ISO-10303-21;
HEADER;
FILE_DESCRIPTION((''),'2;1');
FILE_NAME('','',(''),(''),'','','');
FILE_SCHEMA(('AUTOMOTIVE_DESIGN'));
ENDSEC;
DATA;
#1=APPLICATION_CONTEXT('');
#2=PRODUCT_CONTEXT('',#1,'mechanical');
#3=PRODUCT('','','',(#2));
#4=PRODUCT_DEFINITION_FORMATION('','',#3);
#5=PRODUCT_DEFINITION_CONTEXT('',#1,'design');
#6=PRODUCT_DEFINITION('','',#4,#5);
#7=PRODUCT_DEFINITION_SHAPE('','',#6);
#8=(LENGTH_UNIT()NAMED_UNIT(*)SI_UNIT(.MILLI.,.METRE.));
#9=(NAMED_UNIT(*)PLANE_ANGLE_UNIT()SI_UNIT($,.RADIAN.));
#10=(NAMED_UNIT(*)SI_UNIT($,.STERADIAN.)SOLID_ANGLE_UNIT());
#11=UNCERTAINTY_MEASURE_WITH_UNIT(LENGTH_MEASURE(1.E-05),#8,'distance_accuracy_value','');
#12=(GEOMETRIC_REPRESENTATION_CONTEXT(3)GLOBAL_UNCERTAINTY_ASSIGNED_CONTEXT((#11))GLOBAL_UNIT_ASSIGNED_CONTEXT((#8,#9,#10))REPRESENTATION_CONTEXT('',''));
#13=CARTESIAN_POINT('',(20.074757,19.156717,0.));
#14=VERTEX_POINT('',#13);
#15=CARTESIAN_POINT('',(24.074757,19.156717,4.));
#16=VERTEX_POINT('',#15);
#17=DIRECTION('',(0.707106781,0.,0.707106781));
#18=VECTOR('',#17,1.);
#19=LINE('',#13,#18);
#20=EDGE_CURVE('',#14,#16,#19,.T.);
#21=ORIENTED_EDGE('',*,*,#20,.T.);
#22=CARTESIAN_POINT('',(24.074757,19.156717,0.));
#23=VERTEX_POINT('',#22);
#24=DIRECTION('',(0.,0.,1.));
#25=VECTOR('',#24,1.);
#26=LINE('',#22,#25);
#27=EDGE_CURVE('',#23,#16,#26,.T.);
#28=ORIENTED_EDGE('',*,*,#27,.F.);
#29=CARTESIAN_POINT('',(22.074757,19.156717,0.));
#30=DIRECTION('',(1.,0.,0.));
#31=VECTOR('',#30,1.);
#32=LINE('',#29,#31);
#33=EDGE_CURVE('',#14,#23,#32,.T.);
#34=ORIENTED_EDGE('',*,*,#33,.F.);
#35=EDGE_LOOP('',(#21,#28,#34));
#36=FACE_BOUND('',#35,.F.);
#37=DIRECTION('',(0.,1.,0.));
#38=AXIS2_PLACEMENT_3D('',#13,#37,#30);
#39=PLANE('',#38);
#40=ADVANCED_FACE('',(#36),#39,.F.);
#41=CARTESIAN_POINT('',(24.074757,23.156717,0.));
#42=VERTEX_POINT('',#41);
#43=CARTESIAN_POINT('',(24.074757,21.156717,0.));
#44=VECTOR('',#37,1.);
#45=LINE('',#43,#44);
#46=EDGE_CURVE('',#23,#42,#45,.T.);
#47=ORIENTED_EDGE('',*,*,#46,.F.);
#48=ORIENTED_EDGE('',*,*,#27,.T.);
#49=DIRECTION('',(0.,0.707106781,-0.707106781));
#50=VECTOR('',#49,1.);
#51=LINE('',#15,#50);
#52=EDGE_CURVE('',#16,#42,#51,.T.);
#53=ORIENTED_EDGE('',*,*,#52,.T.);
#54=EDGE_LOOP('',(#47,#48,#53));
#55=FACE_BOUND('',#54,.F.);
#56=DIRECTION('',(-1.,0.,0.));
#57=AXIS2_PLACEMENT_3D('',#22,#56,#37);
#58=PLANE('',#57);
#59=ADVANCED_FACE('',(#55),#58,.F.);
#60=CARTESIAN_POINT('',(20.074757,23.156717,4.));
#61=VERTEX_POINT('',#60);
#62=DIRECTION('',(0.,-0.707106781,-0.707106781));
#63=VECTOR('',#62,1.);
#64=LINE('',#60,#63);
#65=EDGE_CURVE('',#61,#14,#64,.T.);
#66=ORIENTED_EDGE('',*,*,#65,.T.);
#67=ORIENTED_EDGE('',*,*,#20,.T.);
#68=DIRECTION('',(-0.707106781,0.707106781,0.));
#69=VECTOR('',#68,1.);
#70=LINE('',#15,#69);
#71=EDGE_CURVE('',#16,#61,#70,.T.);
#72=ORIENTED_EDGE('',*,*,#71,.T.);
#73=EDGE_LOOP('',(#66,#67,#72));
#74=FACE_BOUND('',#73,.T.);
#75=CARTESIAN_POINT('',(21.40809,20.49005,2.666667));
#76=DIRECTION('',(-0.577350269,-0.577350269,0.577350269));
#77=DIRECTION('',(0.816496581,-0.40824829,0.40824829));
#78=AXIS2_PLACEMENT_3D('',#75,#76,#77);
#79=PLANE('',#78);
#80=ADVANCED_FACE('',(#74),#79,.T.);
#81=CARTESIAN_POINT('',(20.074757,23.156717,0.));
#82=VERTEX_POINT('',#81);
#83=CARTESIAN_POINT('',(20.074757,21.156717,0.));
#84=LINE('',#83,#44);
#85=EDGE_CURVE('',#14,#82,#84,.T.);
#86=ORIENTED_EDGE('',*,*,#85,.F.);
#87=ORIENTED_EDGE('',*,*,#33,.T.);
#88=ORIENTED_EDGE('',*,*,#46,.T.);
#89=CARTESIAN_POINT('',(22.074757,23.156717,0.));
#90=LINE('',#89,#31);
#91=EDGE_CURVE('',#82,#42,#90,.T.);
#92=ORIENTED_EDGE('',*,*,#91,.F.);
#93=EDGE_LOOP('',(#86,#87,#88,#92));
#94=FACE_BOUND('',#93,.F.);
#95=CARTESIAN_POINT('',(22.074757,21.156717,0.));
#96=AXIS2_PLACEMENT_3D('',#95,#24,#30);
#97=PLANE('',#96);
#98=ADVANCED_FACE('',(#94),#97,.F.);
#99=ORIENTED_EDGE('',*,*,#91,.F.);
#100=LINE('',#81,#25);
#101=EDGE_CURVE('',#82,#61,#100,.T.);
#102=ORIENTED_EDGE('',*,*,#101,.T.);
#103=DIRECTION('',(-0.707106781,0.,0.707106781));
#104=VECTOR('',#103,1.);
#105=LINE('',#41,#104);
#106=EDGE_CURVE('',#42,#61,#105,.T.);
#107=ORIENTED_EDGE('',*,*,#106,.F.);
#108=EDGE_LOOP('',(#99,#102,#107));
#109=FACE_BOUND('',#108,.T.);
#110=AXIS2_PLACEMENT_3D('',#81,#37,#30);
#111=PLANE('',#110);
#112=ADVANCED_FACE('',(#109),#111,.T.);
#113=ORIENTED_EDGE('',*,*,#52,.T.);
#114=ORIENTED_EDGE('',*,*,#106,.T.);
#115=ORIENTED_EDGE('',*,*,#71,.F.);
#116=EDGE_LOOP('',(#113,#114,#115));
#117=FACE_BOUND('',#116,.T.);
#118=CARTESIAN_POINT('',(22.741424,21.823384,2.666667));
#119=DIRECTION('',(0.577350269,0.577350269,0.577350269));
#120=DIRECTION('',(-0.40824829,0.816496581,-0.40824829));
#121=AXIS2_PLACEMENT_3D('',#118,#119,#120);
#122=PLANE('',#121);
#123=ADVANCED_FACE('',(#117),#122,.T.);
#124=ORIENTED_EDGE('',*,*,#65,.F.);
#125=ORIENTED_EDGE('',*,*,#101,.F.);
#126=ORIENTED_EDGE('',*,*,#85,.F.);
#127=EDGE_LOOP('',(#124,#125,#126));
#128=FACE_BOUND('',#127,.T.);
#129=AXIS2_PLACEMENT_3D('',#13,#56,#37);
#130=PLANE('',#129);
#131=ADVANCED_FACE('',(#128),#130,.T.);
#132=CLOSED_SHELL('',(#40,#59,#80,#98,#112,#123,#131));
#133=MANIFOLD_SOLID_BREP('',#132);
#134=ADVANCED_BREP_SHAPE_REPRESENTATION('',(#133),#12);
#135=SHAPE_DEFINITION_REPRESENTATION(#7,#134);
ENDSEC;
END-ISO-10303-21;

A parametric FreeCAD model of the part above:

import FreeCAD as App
import Part
import Sketcher
from FreeCAD import Vector
Q = App.Units.Quantity

doc = App.newDocument("Part")
body = doc.addObject("PartDesign::Body", "Body")

# Sketch on XY plane
sketch1 = body.newObject("Sketcher::SketchObject", "Sketch")
sketch1.AttachmentSupport = (doc.getObject("XY_Plane"), [""])
sketch1.MapMode = "FlatFace"
sketch1.addGeometry([
    Part.LineSegment(Vector(20.1, 23.2, 0), Vector(20.1, 19.2, 0)),
    Part.LineSegment(Vector(20.1, 19.2, 0), Vector(24.1, 19.2, 0)),
    Part.LineSegment(Vector(24.1, 19.2, 0), Vector(24.1, 23.2, 0)),
    Part.LineSegment(Vector(24.1, 23.2, 0), Vector(20.1, 23.2, 0)),
], False)
sketch1.addConstraint([
    Sketcher.Constraint("Coincident", 0, 2, 1, 1),
    Sketcher.Constraint("Coincident", 1, 2, 2, 1),
    Sketcher.Constraint("Coincident", 2, 2, 3, 1),
    Sketcher.Constraint("Coincident", 3, 2, 0, 1),
    Sketcher.Constraint("Vertical", 0),
    Sketcher.Constraint("Horizontal", 1),
    Sketcher.Constraint("Vertical", 2),
    Sketcher.Constraint("Horizontal", 3),
    Sketcher.Constraint("Equal", 3, 0),
    Sketcher.Constraint("DistanceX", 1, 1, 1, 2, 4.0),
    Sketcher.Constraint("DistanceX", -1, 1, 0, 2, 20.074757),
    Sketcher.Constraint("DistanceY", -1, 1, 0, 2, 19.156717),
])
pad1 = body.newObject("PartDesign::Pad", "Pad")
pad1.Profile = sketch1
pad1.Length = 4

# Sketch on an angled plane
sketch2 = body.newObject("Sketcher::SketchObject", "Sketch001")
sketch2.Placement = App.Placement(Vector(13.077158, 13.077158, -13.077158), App.Rotation(Vector(0.816496581, -0.40824829, 0.40824829), Vector(0, 0.707106781, 0.707106781), Vector(-0.577350269, -0.577350269, 0.577350269), "ZXY"))
sketch2.addGeometry([
    Part.LineSegment(Vector(13, 16, 0), Vector(9, 19, 0)),
    Part.LineSegment(Vector(9, 19, 0), Vector(9, 14, 0)),
    Part.LineSegment(Vector(9, 14, 0), Vector(13, 16, 0)),
], False)
sketch2.addConstraint([
    Sketcher.Constraint("Coincident", 0, 2, 1, 1),
    Sketcher.Constraint("Coincident", 1, 2, 2, 1),
    Sketcher.Constraint("Coincident", 2, 2, 0, 1),
    Sketcher.Constraint("Vertical", 1),
    Sketcher.Constraint("Equal", 0, 2),
    Sketcher.Constraint("Angle", 0, Q("150 deg")),
    Sketcher.Constraint("DistanceY", -1, 1, 0, 2, 19.202699),
    Sketcher.Constraint("DistanceY", 1, 2, 1, 1, 5.656854),
    Sketcher.Constraint("DistanceX", -1, 1, 0, 2, 8.570274),
])
pocket1 = body.newObject("PartDesign::Pocket", "Pocket")
pocket1.Profile = sketch2
pocket1.Length = 25
pocket1.Reversed = True

# Sketch on an angled plane
sketch3 = body.newObject("Sketcher::SketchObject", "Sketch002")
sketch3.Placement = App.Placement(Vector(15.743825, 15.743825, 15.743825), App.Rotation(Vector(-0.40824829, 0.816496581, -0.40824829), Vector(-0.707106781, 0, 0.707106781), Vector(0.577350269, 0.577350269, 0.577350269), "ZXY"))
sketch3.addGeometry([
    Part.LineSegment(Vector(9, -17, 0), Vector(9, -11, 0)),
    Part.LineSegment(Vector(9, -11, 0), Vector(4, -14, 0)),
    Part.LineSegment(Vector(4, -14, 0), Vector(9, -17, 0)),
], False)
sketch3.addConstraint([
    Sketcher.Constraint("Coincident", 0, 2, 1, 1),
    Sketcher.Constraint("Coincident", 1, 2, 2, 1),
    Sketcher.Constraint("Coincident", 2, 2, 0, 1),
    Sketcher.Constraint("Vertical", 0),
    Sketcher.Constraint("Equal", 1, 2),
    Sketcher.Constraint("Angle", 1, Q("-150 deg")),
    Sketcher.Constraint("DistanceX", -1, 1, 0, 2, 9.078902),
    Sketcher.Constraint("DistanceY", 0, 1, 0, 2, 5.656854),
    Sketcher.Constraint("DistanceY", 0, 2, -1, 1, 11.36657),
])
pocket2 = body.newObject("PartDesign::Pocket", "Pocket001")
pocket2.Profile = sketch3
pocket2.Length = 25
pocket2.Reversed = True

doc.recompute()
